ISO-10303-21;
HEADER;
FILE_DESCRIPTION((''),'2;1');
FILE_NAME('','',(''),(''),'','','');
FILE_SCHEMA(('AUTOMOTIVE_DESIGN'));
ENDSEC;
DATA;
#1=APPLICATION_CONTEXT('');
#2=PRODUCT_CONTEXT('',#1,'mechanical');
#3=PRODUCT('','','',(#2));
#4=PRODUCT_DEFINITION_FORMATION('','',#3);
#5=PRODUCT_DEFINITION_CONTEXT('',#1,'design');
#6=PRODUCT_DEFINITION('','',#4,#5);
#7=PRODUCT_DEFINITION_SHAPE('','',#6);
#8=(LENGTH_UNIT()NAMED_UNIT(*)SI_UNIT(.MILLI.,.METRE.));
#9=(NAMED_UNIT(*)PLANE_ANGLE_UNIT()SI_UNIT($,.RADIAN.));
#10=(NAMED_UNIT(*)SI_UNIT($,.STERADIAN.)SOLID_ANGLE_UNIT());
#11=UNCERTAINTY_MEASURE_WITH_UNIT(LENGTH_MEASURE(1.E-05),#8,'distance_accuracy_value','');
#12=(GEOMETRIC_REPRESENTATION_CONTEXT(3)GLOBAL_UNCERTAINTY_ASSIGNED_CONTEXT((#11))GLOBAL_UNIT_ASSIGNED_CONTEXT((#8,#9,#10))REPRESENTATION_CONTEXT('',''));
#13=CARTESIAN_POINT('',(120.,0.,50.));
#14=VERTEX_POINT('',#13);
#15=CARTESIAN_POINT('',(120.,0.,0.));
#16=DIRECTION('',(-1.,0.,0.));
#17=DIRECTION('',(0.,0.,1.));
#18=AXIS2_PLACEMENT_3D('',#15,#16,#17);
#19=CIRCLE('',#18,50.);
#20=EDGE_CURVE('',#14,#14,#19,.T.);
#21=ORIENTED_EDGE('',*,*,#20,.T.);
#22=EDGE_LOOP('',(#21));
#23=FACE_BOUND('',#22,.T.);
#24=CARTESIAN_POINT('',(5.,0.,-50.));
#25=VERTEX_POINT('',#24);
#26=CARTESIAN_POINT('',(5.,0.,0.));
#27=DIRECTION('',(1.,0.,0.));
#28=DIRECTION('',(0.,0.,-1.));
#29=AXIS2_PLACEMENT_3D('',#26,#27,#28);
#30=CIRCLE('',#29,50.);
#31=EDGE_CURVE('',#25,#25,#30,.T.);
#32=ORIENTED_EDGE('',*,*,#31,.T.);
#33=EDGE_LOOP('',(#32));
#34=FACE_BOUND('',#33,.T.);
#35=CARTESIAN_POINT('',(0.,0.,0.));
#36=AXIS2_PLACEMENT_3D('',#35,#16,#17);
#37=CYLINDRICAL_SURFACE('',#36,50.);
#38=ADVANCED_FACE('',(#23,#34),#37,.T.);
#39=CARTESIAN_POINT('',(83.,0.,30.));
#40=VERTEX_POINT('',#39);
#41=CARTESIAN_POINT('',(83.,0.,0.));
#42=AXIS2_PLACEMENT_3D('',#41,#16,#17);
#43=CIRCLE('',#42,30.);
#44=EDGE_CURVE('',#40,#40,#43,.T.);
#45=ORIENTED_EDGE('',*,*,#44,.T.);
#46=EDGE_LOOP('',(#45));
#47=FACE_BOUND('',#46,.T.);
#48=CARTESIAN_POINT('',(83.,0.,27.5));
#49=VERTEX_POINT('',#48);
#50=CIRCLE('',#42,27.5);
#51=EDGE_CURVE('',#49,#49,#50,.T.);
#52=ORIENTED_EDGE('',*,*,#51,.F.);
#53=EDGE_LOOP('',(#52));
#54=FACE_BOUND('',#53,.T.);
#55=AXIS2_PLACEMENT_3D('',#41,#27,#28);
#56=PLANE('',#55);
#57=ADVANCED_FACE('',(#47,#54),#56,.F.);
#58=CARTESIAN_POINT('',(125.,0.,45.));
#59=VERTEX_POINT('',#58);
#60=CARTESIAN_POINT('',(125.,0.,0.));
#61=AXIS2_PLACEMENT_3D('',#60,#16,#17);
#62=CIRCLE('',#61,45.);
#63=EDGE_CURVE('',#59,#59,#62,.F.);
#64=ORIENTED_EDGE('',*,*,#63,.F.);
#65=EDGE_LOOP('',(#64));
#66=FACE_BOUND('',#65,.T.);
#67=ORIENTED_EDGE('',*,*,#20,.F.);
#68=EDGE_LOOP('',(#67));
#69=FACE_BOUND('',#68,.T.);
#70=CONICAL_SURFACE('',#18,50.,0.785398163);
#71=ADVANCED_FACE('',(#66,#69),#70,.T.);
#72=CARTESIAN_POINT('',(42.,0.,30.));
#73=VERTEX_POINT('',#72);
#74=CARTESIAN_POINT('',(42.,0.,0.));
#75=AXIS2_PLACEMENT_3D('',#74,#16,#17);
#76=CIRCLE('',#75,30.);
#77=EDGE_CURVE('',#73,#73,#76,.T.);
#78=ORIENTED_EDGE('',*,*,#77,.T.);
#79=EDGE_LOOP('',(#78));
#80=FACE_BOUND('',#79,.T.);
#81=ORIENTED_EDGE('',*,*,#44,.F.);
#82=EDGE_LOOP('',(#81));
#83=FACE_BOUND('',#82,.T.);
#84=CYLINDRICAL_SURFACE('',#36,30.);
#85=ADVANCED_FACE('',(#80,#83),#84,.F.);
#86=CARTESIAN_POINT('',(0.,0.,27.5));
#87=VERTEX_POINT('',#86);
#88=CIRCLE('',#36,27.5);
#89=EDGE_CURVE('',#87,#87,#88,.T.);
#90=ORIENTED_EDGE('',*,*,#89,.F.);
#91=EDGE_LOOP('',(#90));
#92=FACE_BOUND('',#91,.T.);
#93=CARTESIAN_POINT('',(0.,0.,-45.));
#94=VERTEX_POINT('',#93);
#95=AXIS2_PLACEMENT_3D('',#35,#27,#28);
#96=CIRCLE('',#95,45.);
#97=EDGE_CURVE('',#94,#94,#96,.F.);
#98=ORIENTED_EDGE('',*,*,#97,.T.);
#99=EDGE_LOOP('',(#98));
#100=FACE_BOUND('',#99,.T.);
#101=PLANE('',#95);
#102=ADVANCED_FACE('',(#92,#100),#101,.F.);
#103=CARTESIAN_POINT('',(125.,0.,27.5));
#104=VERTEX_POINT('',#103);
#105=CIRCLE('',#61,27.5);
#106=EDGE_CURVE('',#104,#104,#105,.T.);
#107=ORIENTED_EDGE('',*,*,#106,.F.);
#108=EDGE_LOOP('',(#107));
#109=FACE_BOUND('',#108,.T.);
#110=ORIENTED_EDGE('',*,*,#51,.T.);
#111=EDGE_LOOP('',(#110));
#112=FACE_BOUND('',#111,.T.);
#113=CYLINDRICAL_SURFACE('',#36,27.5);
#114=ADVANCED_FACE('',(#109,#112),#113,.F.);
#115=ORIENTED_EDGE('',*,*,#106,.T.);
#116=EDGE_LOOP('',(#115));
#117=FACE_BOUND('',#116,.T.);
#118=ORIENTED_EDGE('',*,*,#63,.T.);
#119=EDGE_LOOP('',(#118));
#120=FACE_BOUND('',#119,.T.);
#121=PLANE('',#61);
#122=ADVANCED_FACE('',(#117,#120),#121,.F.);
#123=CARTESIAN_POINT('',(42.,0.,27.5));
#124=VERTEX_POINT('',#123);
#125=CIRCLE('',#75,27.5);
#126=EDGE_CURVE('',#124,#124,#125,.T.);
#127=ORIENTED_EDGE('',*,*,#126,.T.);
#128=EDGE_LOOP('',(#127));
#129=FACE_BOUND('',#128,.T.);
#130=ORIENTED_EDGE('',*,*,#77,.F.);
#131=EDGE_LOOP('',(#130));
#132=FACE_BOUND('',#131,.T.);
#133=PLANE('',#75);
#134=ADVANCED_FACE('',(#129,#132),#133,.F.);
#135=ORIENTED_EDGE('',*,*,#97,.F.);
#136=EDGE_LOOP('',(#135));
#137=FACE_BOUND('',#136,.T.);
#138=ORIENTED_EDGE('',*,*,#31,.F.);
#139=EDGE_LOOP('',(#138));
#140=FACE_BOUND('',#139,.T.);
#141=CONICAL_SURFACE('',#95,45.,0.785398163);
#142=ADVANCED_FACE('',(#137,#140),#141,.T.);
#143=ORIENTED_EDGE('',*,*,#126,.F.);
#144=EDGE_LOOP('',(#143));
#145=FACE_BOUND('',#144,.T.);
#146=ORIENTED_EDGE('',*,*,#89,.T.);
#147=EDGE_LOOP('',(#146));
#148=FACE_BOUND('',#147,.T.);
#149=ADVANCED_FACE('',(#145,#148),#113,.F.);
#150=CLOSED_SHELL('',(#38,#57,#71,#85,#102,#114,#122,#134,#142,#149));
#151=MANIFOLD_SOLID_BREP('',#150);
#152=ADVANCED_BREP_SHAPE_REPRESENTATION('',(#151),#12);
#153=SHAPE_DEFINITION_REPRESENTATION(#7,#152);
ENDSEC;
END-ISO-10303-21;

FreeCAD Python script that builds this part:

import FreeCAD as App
import Part
import Sketcher
from FreeCAD import Vector


def edges_at(feature, points):
    """Names of the edges that pass closest to the given points."""
    edges = feature.Shape.Edges
    near = lambda p: min(range(len(edges)), key=lambda i: edges[i].distToShape(Part.Vertex(*p))[0])
    return sorted({f"Edge{near(p) + 1}" for p in points})

doc = App.newDocument("Part")
params = doc.addObject("Spreadsheet::Sheet", "Params")
for row, (alias, value) in enumerate([
    ("sketch1_width", "42 mm"),
    ("sketch1_width2", "125 mm"),
    ("sketch1_height", "2.5 mm"),
    ("sketch1_height2", "22.5 mm"),
    ("revolution_angle", "360 deg"),
    ("chamfer_size", "5 mm"),
], start=1):
    params.set(f"A{row}", alias)
    params.set(f"B{row}", "=" + value)
    params.setAlias(f"B{row}", alias)

body = doc.addObject("PartDesign::Body", "Body")

# Sketch on XY plane
sketch1 = body.newObject("Sketcher::SketchObject", "Sketch")
sketch1.AttachmentSupport = (doc.getObject("XY_Plane"), [""])
sketch1.MapMode = "FlatFace"
sketch1.addGeometry(Part.LineSegment(Vector(83, 30, 0), Vector(83, 27.5, 0)), False)
sketch1.addGeometry(Part.LineSegment(Vector(83, 27.5, 0), Vector(125, 27.5, 0)), False)
sketch1.addGeometry(Part.LineSegment(Vector(125, 27.5, 0), Vector(125, 50, 0)), False)
sketch1.addGeometry(Part.LineSegment(Vector(125, 50, 0), Vector(0, 50, 0)), False)
sketch1.addGeometry(Part.LineSegment(Vector(0, 50, 0), Vector(0, 27.5, 0)), False)
sketch1.addGeometry(Part.LineSegment(Vector(0, 27.5, 0), Vector(42, 27.5, 0)), False)
sketch1.addGeometry(Part.LineSegment(Vector(42, 27.5, 0), Vector(42, 30, 0)), False)
sketch1.addGeometry(Part.LineSegment(Vector(42, 30, 0), Vector(83, 30, 0)), False)
sketch1.addConstraint(Sketcher.Constraint("Coincident", 0, 2, 1, 1))
sketch1.addConstraint(Sketcher.Constraint("Coincident", 1, 2, 2, 1))
sketch1.addConstraint(Sketcher.Constraint("Coincident", 2, 2, 3, 1))
sketch1.addConstraint(Sketcher.Constraint("Coincident", 3, 2, 4, 1))
sketch1.addConstraint(Sketcher.Constraint("Coincident", 4, 2, 5, 1))
sketch1.addConstraint(Sketcher.Constraint("Coincident", 5, 2, 6, 1))
sketch1.addConstraint(Sketcher.Constraint("Coincident", 6, 2, 7, 1))
sketch1.addConstraint(Sketcher.Constraint("Coincident", 7, 2, 0, 1))
sketch1.addConstraint(Sketcher.Constraint("Vertical", 0))
sketch1.addConstraint(Sketcher.Constraint("Horizontal", 1))
sketch1.addConstraint(Sketcher.Constraint("Vertical", 2))
sketch1.addConstraint(Sketcher.Constraint("Horizontal", 3))
sketch1.addConstraint(Sketcher.Constraint("Vertical", 4))
sketch1.addConstraint(Sketcher.Constraint("Horizontal", 5))
sketch1.addConstraint(Sketcher.Constraint("Vertical", 6))
sketch1.addConstraint(Sketcher.Constraint("Horizontal", 7))
sketch1.addConstraint(Sketcher.Constraint("PointOnObject", 3, 2, -2))
sketch1.addConstraint(Sketcher.Constraint("Horizontal", 1, 2, 4, 2))
sketch1.addConstraint(Sketcher.Constraint("Equal", 1, 5))
sketch1.addConstraint(Sketcher.Constraint("DistanceX", 1, 1, 1, 2, 42.0))
sketch1.addConstraint(Sketcher.Constraint("DistanceX", 3, 2, 3, 1, 125.0))
sketch1.addConstraint(Sketcher.Constraint("DistanceY", 0, 2, 0, 1, 2.5))
sketch1.addConstraint(Sketcher.Constraint("DistanceY", 2, 1, 2, 2, 22.5))
sketch1.addConstraint(Sketcher.Constraint("DistanceY", -1, 1, 2, 2, 50.0))
sketch1.setExpression("Constraints[19]", "Params.sketch1_width")
sketch1.setExpression("Constraints[20]", "Params.sketch1_width2")
sketch1.setExpression("Constraints[21]", "Params.sketch1_height")
sketch1.setExpression("Constraints[22]", "Params.sketch1_height2")
revolution = body.newObject("PartDesign::Revolution", "Revolution")
revolution.Profile = sketch1
revolution.ReferenceAxis = (sketch1, ["H_Axis"])
revolution.setExpression("Angle", "Params.revolution_angle")
doc.recompute()

chamfer = body.newObject("PartDesign::Chamfer", "Chamfer")
chamfer.Base = (revolution, edges_at(revolution, [(0, 0, -50), (125, 0, -50)]))
chamfer.setExpression("Size", "Params.chamfer_size")

doc.recompute()
